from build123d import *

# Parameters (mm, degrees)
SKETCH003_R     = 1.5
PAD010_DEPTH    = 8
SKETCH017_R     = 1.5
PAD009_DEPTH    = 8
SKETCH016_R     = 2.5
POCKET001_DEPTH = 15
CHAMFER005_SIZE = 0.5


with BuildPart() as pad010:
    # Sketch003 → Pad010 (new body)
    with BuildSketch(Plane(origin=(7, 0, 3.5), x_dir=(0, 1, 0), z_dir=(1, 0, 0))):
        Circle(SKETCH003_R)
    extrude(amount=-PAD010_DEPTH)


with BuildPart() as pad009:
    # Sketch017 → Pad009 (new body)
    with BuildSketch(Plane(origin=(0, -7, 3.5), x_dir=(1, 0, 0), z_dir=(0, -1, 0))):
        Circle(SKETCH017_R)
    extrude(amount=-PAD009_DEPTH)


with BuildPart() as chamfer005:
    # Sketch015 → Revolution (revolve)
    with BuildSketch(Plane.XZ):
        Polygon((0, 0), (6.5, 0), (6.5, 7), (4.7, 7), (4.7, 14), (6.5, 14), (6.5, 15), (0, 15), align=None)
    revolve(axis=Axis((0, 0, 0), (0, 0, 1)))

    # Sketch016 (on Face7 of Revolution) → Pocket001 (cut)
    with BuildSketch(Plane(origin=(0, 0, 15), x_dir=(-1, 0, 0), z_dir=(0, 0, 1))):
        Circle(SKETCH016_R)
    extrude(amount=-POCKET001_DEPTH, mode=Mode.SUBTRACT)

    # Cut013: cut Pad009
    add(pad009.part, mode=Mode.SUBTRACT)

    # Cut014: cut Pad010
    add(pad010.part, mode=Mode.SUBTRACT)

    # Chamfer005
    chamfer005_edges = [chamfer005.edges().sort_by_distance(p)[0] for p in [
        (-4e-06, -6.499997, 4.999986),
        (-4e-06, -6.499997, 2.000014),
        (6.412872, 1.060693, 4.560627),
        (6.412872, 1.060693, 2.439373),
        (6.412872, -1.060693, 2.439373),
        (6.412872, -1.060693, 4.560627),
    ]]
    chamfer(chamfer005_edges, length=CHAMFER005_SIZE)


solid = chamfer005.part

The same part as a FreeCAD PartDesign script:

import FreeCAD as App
import Part
import Sketcher
from FreeCAD import Vector
Q = App.Units.Quantity


def edges_at(feature, points):
    """Names of the edges that pass closest to the given points."""
    edges = feature.Shape.Edges
    near = lambda p: min(range(len(edges)), key=lambda i: edges[i].distToShape(Part.Vertex(*p))[0])
    return sorted({f"Edge{near(p) + 1}" for p in points})


def add_polygon(sketch, points):
    """Adds a closed chain of lines whose ends are joined by coincident constraints."""
    first, n = sketch.GeometryCount, len(points)
    for a, b in zip(points, points[1:] + points[:1]):
        sketch.addGeometry(Part.LineSegment(App.Vector(*a, 0), App.Vector(*b, 0)), False)
    for i in range(n):
        sketch.addConstraint(Sketcher.Constraint("Coincident", first + i, 2, first + (i + 1) % n, 1))

doc = App.newDocument("Part")
params = doc.addObject("Spreadsheet::Sheet", "Params")
for row, (alias, value) in enumerate([
    ("sketch1_diameter", "3 mm"),
    ("pad1_length", "8 mm"),
    ("sketch2_diameter", "3 mm"),
    ("pad2_length", "8 mm"),
    ("sketch3_height", "7 mm"),
    ("sketch3_height2", "1 mm"),
    ("sketch3_width", "6.5 mm"),
    ("sketch3_width2", "1.8 mm"),
    ("revolution_angle", "360 deg"),
    ("sketch4_diameter", "5 mm"),
    ("pocket1_length", "15 mm"),
    ("chamfer_size", "0.5 mm"),
], start=1):
    params.set(f"A{row}", alias)
    params.set(f"B{row}", "=" + value)
    params.setAlias(f"B{row}", alias)

body = doc.addObject("PartDesign::Body", "Body")

sketch1 = body.newObject("Sketcher::SketchObject", "Sketch")
sketch1.AttachmentSupport = (doc.getObject("YZ_Plane"), [""])
sketch1.MapMode = "FlatFace"
sketch1.AttachmentOffset = App.Placement(Vector(0, 0, 7), App.Rotation())
sketch1.addGeometry(Part.Circle(Vector(0, 3.5, 0), Vector(0, 0, 1), 1.5), False)
sketch1.addConstraint([
    Sketcher.Constraint("PointOnObject", 0, 3, -2),
    Sketcher.Constraint("Diameter", 0, Q("3 mm")),
    Sketcher.Constraint("DistanceY", -1, 1, 0, 3, Q("3.5 mm")),
])
sketch1.setExpression("Constraints[1]", "Params.sketch1_diameter")
pad1 = body.newObject("PartDesign::Pad", "Pad")
pad1.Profile = sketch1
pad1.setExpression("Length", "Params.pad1_length")
pad1.Reversed = True
body2 = doc.addObject("PartDesign::Body", "Body001")

sketch2 = body2.newObject("Sketcher::SketchObject", "Sketch001")
sketch2.AttachmentSupport = (doc.getObject("XZ_Plane001"), [""])
sketch2.MapMode = "FlatFace"
sketch2.AttachmentOffset = App.Placement(Vector(0, 0, 7), App.Rotation())
sketch2.addGeometry(Part.Circle(Vector(0, 3.5, 0), Vector(0, 0, 1), 1.5), False)
sketch2.addConstraint([
    Sketcher.Constraint("PointOnObject", 0, 3, -2),
    Sketcher.Constraint("Diameter", 0, Q("3 mm")),
    Sketcher.Constraint("DistanceY", -1, 1, 0, 3, Q("3.5 mm")),
])
sketch2.setExpression("Constraints[1]", "Params.sketch2_diameter")
pad2 = body2.newObject("PartDesign::Pad", "Pad001")
pad2.Profile = sketch2
pad2.setExpression("Length", "Params.pad2_length")
pad2.Reversed = True
body3 = doc.addObject("PartDesign::Body", "Body002")

sketch3 = body3.newObject("Sketcher::SketchObject", "Sketch002")
sketch3.AttachmentSupport = (doc.getObject("XZ_Plane002"), [""])
sketch3.MapMode = "FlatFace"
add_polygon(sketch3, [(0, 0), (6.5, 0), (6.5, 7), (4.7, 7), (4.7, 14), (6.5, 14), (6.5, 15), (0, 15)])
sketch3.addConstraint([
    Sketcher.Constraint("Horizontal", 0),
    Sketcher.Constraint("Vertical", 1),
    Sketcher.Constraint("Horizontal", 2),
    Sketcher.Constraint("Vertical", 3),
    Sketcher.Constraint("Horizontal", 4),
    Sketcher.Constraint("Vertical", 5),
    Sketcher.Constraint("Horizontal", 6),
    Sketcher.Constraint("Vertical", 7),
    Sketcher.Constraint("Coincident", 7, 2, -1, 1),
    Sketcher.Constraint("Vertical", 1, 2, 4, 2),
    Sketcher.Constraint("Equal", 1, 3),
    Sketcher.Constraint("DistanceY", 1, 1, 1, 2, Q("7 mm")),
    Sketcher.Constraint("DistanceY", 5, 1, 5, 2, Q("1 mm")),
    Sketcher.Constraint("DistanceX", 0, 1, 0, 2, Q("6.5 mm")),
    Sketcher.Constraint("DistanceX", 2, 2, 2, 1, Q("1.8 mm")),
])
sketch3.setExpression("Constraints[19]", "Params.sketch3_height")
sketch3.setExpression("Constraints[20]", "Params.sketch3_height2")
sketch3.setExpression("Constraints[21]", "Params.sketch3_width")
sketch3.setExpression("Constraints[22]", "Params.sketch3_width2")
revolution = body3.newObject("PartDesign::Revolution", "Revolution")
revolution.Profile = sketch3
revolution.ReferenceAxis = (sketch3, ["V_Axis"])
revolution.setExpression("Angle", "Params.revolution_angle")

sketch4 = body3.newObject("Sketcher::SketchObject", "Sketch003")
sketch4.AttachmentSupport = (doc.getObject("XY_Plane002"), [""])
sketch4.MapMode = "FlatFace"
sketch4.AttachmentOffset = App.Placement(Vector(0, 0, 15), App.Rotation())
sketch4.addGeometry(Part.Circle(Vector(0, 0, 0), Vector(0, 0, 1), 2.5), False)
sketch4.addConstraint([
    Sketcher.Constraint("Coincident", 0, 3, -1, 1),
    Sketcher.Constraint("Diameter", 0, Q("5 mm")),
])
sketch4.setExpression("Constraints[1]", "Params.sketch4_diameter")
pocket1 = body3.newObject("PartDesign::Pocket", "Pocket")
pocket1.Profile = sketch4
pocket1.setExpression("Length", "Params.pocket1_length")
doc.recompute()

boolean = body3.newObject("PartDesign::Boolean", "Boolean")
boolean.Type = "Cut"
boolean.addObjects([body2])
doc.recompute()

boolean2 = body3.newObject("PartDesign::Boolean", "Boolean001")
boolean2.Type = "Cut"
boolean2.addObjects([body])
doc.recompute()

chamfer = body3.newObject("PartDesign::Chamfer", "Chamfer")
chamfer.Base = (boolean2, edges_at(boolean2, [
    (-1.5, -6.325, 3.5),
    (-1.5, -6.325, 3.5),
    (6.413, 1.061, 4.561),
    (6.413, 1.061, 2.439),
    (6.325, -1.5, 3.5),
    (6.325, -1.5, 3.5),
]))
chamfer.setExpression("Size", "Params.chamfer_size")

doc.recompute()
